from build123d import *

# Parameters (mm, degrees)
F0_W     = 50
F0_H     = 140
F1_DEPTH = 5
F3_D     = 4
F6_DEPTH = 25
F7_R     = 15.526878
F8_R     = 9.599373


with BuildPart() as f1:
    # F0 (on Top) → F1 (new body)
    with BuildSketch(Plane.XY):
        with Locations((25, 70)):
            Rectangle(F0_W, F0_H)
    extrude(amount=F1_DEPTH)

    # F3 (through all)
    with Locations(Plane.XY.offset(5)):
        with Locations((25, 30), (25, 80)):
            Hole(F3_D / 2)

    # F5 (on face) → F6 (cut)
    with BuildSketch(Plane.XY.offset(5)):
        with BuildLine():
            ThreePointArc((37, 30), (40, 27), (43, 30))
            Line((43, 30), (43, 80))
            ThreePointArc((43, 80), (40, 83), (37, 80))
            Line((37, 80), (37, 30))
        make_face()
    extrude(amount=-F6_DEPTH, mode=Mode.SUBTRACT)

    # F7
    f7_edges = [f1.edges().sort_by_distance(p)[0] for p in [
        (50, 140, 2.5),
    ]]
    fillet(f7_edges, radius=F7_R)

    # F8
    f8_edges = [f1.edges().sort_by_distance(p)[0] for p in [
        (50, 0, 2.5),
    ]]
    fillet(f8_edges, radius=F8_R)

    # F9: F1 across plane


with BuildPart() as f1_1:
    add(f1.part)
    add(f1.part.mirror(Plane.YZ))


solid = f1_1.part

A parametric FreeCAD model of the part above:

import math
import FreeCAD as App
import Part
import Sketcher


def edges_at(feature, points):
    """Names of the edges that pass closest to the given points."""
    edges = feature.Shape.Edges
    near = lambda p: min(range(len(edges)), key=lambda i: edges[i].distToShape(Part.Vertex(*p))[0])
    return sorted({f"Edge{near(p) + 1}" for p in points})

doc = App.newDocument("Part")
body = doc.addObject("PartDesign::Body", "Body")

# Sketch on XY plane
sketch1 = body.newObject("Sketcher::SketchObject", "Sketch")
sketch1.AttachmentSupport = (doc.getObject("XY_Plane"), [""])
sketch1.MapMode = "FlatFace"
sketch1.addGeometry([
    Part.LineSegment(App.Vector(0, 140, 0), App.Vector(0, 0, 0)),
    Part.LineSegment(App.Vector(0, 0, 0), App.Vector(50, 0, 0)),
    Part.LineSegment(App.Vector(50, 0, 0), App.Vector(50, 140, 0)),
    Part.LineSegment(App.Vector(50, 140, 0), App.Vector(0, 140, 0)),
], False)
sketch1.addConstraint([
    Sketcher.Constraint("Coincident", 0, 2, 1, 1),
    Sketcher.Constraint("Coincident", 1, 2, 2, 1),
    Sketcher.Constraint("Coincident", 2, 2, 3, 1),
    Sketcher.Constraint("Coincident", 3, 2, 0, 1),
    Sketcher.Constraint("Vertical", 0),
    Sketcher.Constraint("Horizontal", 1),
    Sketcher.Constraint("Vertical", 2),
    Sketcher.Constraint("Horizontal", 3),
    Sketcher.Constraint("Coincident", 0, 2, -1, 1),
    Sketcher.Constraint("DistanceX", 1, 1, 1, 2, 50.0),
    Sketcher.Constraint("DistanceY", 0, 2, 0, 1, 140.0),
])
pad1 = body.newObject("PartDesign::Pad", "Pad")
pad1.Profile = sketch1
pad1.Length = 5

# Sketch on XY plane
sketch2 = body.newObject("Sketcher::SketchObject", "Sketch001")
sketch2.AttachmentSupport = (doc.getObject("XY_Plane"), [""])
sketch2.MapMode = "FlatFace"
sketch2.AttachmentOffset = App.Placement(App.Vector(0, 0, 5), App.Rotation())
sketch2.addGeometry([
    Part.Circle(App.Vector(25, 30, 0), App.Vector(0, 0, 1), 2),
    Part.Circle(App.Vector(25, 80, 0), App.Vector(0, 0, 1), 2),
], False)
sketch2.addConstraint([
    Sketcher.Constraint("Equal", 0, 1),
    Sketcher.Constraint("Vertical", 0, 3, 1, 3),
    Sketcher.Constraint("Diameter", 0, 4.0),
    Sketcher.Constraint("DistanceX", -1, 1, 0, 3, 25.0),
    Sketcher.Constraint("DistanceY", -1, 1, 0, 3, 30.0),
    Sketcher.Constraint("DistanceY", -1, 1, 1, 3, 80.0),
])
doc.recompute()
hole = body.newObject("PartDesign::Hole", "Hole")
hole.Profile = sketch2
hole.ThreadType = "None"
hole.Diameter = 4
hole.DepthType = "ThroughAll"

# Sketch on XY plane
sketch3 = body.newObject("Sketcher::SketchObject", "Sketch002")
sketch3.AttachmentSupport = (doc.getObject("XY_Plane"), [""])
sketch3.MapMode = "FlatFace"
sketch3.AttachmentOffset = App.Placement(App.Vector(0, 0, 5), App.Rotation())
sketch3.addGeometry([
    Part.ArcOfCircle(Part.Circle(App.Vector(40, 30, 0), App.Vector(0, 0, 1), 3), math.radians(180), math.radians(360)),
    Part.LineSegment(App.Vector(43, 30, 0), App.Vector(43, 80, 0)),
    Part.ArcOfCircle(Part.Circle(App.Vector(40, 80, 0), App.Vector(0, 0, 1), 3), math.radians(0), math.radians(180)),
    Part.LineSegment(App.Vector(37, 80, 0), App.Vector(37, 30, 0)),
], False)
sketch3.addConstraint([
    Sketcher.Constraint("Tangent", 0, 2, 1, 1),
    Sketcher.Constraint("Tangent", 1, 2, 2, 1),
    Sketcher.Constraint("Tangent", 2, 2, 3, 1),
    Sketcher.Constraint("Tangent", 3, 2, 0, 1),
    Sketcher.Constraint("Vertical", 1),
    Sketcher.Constraint("Vertical", 3),
    Sketcher.Constraint("Radius", 0, 3.0),
    Sketcher.Constraint("DistanceY", 1, 1, 1, 2, 50.0),
    Sketcher.Constraint("DistanceX", -1, 1, 0, 3, 40.0),
    Sketcher.Constraint("DistanceY", -1, 1, 0, 3, 30.0),
])
pocket1 = body.newObject("PartDesign::Pocket", "Pocket")
pocket1.Profile = sketch3
pocket1.Length = 25
doc.recompute()

fillet = body.newObject("PartDesign::Fillet", "Fillet")
fillet.Base = (pocket1, edges_at(pocket1, [(50, 140, 2.5)]))
fillet.Radius = 15.526878
doc.recompute()

fillet2 = body.newObject("PartDesign::Fillet", "Fillet001")
fillet2.Base = (fillet, edges_at(fillet, [(50, 0, 2.5)]))
fillet2.Radius = 9.599373
body2 = doc.addObject("PartDesign::Body", "Body001")
doc.recompute()

body2.BaseFeature = body
doc.recompute()

mirroring = doc.addObject("Part::Mirroring", "Mirroring")
mirroring.Source = body
mirroring.Base = App.Vector(0, 0, 0)
mirroring.Normal = App.Vector(1, 0, 0)
body3 = doc.addObject("PartDesign::Body", "Body002")
body3.BaseFeature = mirroring
boolean = body2.newObject("PartDesign::Boolean", "Boolean")
boolean.Type = "Fuse"
boolean.addObjects([body3])
doc.recompute()
mirroring.Visibility = False

doc.recompute()
